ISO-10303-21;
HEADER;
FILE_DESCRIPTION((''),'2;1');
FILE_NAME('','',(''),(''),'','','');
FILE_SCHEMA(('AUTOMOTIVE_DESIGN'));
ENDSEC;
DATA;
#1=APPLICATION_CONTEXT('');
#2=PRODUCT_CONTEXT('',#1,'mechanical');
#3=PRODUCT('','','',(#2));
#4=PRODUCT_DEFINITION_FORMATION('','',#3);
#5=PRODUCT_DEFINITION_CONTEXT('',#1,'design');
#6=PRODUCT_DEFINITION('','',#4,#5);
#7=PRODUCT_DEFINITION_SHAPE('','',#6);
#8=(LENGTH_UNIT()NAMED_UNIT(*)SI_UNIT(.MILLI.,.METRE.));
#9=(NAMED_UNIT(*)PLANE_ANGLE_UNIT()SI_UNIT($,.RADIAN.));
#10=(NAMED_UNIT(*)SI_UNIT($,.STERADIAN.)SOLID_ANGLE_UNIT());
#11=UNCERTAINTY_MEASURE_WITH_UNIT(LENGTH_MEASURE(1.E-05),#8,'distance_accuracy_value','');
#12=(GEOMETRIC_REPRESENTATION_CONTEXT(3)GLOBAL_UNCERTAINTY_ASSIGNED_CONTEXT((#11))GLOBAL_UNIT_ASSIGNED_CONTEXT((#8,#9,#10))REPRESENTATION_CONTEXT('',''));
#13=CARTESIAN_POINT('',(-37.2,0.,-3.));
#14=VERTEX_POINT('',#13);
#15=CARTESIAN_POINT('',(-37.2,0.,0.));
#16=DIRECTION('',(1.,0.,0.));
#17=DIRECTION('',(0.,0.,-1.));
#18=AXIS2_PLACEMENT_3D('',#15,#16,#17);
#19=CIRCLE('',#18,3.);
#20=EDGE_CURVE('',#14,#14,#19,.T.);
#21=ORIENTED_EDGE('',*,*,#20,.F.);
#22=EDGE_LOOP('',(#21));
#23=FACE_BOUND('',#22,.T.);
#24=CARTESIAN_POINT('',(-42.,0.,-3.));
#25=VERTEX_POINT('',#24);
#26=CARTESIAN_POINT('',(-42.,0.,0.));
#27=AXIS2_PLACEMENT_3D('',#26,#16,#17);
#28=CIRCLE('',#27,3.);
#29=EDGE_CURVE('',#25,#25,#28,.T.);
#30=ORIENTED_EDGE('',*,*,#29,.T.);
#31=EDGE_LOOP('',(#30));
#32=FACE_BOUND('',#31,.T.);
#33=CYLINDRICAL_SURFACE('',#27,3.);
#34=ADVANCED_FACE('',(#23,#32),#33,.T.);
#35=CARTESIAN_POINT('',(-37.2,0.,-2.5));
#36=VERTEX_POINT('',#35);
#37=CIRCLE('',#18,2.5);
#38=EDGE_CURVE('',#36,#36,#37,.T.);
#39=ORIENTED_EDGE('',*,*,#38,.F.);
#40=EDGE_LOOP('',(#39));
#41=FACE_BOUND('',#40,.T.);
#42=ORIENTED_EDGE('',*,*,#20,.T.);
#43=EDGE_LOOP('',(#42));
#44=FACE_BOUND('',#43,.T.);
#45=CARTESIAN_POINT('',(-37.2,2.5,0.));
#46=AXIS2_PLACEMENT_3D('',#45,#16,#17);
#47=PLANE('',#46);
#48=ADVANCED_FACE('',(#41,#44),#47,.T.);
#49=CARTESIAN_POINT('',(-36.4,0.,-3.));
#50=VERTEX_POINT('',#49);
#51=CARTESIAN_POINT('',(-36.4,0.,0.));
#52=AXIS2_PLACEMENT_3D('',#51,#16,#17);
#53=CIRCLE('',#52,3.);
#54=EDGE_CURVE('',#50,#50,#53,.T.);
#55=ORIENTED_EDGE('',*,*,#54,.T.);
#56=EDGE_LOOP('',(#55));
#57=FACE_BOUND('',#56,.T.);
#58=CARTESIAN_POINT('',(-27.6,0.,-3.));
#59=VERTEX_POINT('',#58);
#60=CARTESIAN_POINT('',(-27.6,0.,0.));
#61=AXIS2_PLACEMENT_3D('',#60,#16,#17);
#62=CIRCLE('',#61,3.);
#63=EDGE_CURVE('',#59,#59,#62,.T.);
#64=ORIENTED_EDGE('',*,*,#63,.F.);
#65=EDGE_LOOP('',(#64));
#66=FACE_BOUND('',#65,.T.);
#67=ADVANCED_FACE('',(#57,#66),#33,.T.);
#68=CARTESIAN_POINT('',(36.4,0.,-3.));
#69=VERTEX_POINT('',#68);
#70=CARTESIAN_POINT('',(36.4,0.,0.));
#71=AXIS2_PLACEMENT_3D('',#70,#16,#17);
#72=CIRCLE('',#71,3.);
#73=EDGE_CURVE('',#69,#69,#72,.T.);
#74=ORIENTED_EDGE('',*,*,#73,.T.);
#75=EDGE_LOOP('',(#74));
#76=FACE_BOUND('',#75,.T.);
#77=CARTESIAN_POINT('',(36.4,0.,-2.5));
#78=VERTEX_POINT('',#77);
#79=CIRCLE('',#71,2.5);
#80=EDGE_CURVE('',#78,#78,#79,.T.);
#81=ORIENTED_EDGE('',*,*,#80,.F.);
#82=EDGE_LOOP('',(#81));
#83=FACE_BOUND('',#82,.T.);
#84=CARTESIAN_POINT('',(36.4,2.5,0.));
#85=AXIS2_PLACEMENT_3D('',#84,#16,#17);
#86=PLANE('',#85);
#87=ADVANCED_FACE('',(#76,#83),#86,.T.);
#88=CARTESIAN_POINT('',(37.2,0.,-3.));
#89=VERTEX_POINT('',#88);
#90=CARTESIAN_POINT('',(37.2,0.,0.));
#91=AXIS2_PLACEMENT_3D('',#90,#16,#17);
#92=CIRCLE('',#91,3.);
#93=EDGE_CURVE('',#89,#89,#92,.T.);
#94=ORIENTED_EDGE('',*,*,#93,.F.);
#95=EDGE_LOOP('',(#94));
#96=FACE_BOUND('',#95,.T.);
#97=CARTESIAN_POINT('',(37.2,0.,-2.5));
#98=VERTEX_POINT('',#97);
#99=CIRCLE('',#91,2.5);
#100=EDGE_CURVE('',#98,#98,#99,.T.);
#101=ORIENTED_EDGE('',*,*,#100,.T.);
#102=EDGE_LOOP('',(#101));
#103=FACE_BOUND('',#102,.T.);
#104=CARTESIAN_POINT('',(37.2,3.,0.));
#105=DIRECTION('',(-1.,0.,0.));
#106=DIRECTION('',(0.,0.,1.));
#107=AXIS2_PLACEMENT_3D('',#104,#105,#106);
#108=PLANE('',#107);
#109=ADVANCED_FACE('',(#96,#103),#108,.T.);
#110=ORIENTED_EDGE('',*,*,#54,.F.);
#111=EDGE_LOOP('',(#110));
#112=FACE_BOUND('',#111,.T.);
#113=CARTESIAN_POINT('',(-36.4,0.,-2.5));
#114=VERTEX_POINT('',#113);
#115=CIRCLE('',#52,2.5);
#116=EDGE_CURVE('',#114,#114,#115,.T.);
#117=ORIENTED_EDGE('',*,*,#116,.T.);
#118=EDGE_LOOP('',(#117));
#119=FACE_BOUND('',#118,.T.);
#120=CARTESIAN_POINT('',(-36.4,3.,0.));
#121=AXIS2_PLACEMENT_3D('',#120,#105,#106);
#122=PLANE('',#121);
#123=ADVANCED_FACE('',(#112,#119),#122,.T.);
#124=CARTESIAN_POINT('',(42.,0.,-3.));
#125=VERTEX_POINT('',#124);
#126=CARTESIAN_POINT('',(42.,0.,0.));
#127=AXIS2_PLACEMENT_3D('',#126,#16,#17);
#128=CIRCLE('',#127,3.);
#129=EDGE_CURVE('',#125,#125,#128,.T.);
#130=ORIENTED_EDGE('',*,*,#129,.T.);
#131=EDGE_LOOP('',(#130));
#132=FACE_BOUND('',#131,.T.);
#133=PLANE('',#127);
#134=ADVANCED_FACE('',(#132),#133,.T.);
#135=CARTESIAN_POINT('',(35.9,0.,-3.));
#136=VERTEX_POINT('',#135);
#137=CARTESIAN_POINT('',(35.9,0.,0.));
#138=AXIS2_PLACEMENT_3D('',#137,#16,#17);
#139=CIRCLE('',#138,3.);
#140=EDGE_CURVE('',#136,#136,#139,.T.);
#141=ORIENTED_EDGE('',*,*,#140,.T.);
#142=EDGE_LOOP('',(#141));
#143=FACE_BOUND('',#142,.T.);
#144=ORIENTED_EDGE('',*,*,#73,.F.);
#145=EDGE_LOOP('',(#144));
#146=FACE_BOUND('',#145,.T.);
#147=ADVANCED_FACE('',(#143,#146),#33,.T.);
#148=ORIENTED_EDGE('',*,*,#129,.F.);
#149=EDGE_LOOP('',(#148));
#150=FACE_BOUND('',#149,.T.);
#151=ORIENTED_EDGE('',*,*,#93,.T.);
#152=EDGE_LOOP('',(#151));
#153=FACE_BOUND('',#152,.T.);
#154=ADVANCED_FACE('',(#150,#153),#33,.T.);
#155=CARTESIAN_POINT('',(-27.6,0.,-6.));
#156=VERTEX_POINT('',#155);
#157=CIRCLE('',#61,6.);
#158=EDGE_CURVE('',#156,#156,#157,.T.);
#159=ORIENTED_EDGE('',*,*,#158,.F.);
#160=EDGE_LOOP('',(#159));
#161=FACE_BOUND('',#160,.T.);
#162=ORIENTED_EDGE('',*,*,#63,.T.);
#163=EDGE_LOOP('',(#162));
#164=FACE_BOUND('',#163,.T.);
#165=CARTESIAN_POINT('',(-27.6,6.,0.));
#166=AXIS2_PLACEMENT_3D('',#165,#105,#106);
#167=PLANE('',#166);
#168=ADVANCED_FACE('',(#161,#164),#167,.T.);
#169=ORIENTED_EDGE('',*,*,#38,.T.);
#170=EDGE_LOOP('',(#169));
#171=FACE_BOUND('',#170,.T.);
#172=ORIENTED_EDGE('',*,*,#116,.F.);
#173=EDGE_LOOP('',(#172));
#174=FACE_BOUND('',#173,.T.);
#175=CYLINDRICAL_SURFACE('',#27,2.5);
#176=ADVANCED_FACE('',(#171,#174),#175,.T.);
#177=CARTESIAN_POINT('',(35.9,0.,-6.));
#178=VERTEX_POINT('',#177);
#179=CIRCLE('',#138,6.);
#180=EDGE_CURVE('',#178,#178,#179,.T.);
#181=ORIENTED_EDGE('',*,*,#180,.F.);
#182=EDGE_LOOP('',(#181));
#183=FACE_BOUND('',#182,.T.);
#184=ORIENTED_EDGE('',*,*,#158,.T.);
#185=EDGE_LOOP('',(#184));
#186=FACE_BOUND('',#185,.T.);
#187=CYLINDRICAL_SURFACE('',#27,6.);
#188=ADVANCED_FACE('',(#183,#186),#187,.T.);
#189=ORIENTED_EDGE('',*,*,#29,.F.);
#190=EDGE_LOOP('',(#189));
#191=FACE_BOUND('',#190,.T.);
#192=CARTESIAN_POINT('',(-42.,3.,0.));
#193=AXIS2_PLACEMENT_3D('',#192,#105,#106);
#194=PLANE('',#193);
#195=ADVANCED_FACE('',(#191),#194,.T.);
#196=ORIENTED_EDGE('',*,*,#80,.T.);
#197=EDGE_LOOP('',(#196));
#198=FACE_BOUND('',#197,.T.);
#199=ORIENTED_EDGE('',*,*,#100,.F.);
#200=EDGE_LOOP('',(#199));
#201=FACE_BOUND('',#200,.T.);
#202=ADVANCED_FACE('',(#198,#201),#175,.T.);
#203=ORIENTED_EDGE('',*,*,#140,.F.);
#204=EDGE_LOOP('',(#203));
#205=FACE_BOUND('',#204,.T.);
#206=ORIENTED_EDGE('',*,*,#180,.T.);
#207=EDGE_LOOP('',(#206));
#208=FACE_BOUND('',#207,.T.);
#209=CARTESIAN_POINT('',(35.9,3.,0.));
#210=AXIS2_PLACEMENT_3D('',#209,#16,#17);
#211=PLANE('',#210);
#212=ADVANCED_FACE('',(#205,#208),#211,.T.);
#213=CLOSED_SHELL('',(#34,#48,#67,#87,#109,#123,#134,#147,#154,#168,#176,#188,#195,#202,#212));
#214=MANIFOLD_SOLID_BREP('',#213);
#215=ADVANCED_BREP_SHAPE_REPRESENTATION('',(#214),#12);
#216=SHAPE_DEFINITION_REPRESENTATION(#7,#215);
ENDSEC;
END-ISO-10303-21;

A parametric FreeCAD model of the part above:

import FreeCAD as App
import Part
import Sketcher

V = App.Vector


def add_polygon(sketch, points):
    """Adds a closed chain of lines whose ends are joined by coincident constraints."""
    first, n = sketch.GeometryCount, len(points)
    for a, b in zip(points, points[1:] + points[:1]):
        sketch.addGeometry(Part.LineSegment(App.Vector(*a, 0), App.Vector(*b, 0)), False)
    for i in range(n):
        sketch.addConstraint(Sketcher.Constraint("Coincident", first + i, 2, first + (i + 1) % n, 1))

doc = App.newDocument("Part")
body = doc.addObject("PartDesign::Body", "Body")

# Sketch on XY plane
sketch1 = body.newObject("Sketcher::SketchObject", "Sketch")
sketch1.AttachmentSupport = (doc.getObject("XY_Plane"), [""])
sketch1.MapMode = "FlatFace"
add_polygon(sketch1, [(-42, 3), (-42, 0), (42, 0), (42, 3), (37.2, 3), (37.2, 2.5), (36.4, 2.5), (36.4, 3), (35.9, 3), (35.9, 6), (-27.6, 6), (-27.6, 3), (-36.4, 3), (-36.4, 2.5), (-37.2, 2.5), (-37.2, 3)])  # lines 0-15
sketch1.addConstraint([
    Sketcher.Constraint("Vertical", 0),
    Sketcher.Constraint("Horizontal", 1),
    Sketcher.Constraint("Vertical", 2),
    Sketcher.Constraint("Horizontal", 3),
    Sketcher.Constraint("Vertical", 4),
    Sketcher.Constraint("Horizontal", 5),
    Sketcher.Constraint("Vertical", 6),
    Sketcher.Constraint("Horizontal", 7),
    Sketcher.Constraint("Vertical", 8),
    Sketcher.Constraint("Horizontal", 9),
    Sketcher.Constraint("Vertical", 10),
    Sketcher.Constraint("Horizontal", 11),
    Sketcher.Constraint("Vertical", 12),
    Sketcher.Constraint("Horizontal", 13),
    Sketcher.Constraint("Vertical", 14),
    Sketcher.Constraint("Horizontal", 15),
    Sketcher.Constraint("Symmetric", 0, 2, 1, 2, -1, 1),
    Sketcher.Constraint("Symmetric", 6, 2, 11, 2, -2),
    Sketcher.Constraint("Symmetric", 4, 2, 13, 2, -2),
    Sketcher.Constraint("Horizontal", 3, 2, 6, 2),
    Sketcher.Constraint("Horizontal", 11, 2, 14, 2),
    Sketcher.Constraint("Equal", 7, 4),
    Sketcher.Constraint("Equal", 2, 8),
    Sketcher.Constraint("DistanceX", 1, 1, 1, 2, 84.0),
    Sketcher.Constraint("DistanceY", 0, 2, 0, 1, 3.0),
    Sketcher.Constraint("DistanceX", 3, 2, 3, 1, 4.8),
    Sketcher.Constraint("DistanceX", 5, 2, 5, 1, 0.8),
    Sketcher.Constraint("DistanceX", 7, 2, 7, 1, 0.5),
    Sketcher.Constraint("DistanceX", 9, 2, 9, 1, 63.5),
])
revolution = body.newObject("PartDesign::Revolution", "Revolution")
revolution.Profile = sketch1
revolution.ReferenceAxis = (sketch1, ["H_Axis"])
revolution.Angle = 360

doc.recompute()
